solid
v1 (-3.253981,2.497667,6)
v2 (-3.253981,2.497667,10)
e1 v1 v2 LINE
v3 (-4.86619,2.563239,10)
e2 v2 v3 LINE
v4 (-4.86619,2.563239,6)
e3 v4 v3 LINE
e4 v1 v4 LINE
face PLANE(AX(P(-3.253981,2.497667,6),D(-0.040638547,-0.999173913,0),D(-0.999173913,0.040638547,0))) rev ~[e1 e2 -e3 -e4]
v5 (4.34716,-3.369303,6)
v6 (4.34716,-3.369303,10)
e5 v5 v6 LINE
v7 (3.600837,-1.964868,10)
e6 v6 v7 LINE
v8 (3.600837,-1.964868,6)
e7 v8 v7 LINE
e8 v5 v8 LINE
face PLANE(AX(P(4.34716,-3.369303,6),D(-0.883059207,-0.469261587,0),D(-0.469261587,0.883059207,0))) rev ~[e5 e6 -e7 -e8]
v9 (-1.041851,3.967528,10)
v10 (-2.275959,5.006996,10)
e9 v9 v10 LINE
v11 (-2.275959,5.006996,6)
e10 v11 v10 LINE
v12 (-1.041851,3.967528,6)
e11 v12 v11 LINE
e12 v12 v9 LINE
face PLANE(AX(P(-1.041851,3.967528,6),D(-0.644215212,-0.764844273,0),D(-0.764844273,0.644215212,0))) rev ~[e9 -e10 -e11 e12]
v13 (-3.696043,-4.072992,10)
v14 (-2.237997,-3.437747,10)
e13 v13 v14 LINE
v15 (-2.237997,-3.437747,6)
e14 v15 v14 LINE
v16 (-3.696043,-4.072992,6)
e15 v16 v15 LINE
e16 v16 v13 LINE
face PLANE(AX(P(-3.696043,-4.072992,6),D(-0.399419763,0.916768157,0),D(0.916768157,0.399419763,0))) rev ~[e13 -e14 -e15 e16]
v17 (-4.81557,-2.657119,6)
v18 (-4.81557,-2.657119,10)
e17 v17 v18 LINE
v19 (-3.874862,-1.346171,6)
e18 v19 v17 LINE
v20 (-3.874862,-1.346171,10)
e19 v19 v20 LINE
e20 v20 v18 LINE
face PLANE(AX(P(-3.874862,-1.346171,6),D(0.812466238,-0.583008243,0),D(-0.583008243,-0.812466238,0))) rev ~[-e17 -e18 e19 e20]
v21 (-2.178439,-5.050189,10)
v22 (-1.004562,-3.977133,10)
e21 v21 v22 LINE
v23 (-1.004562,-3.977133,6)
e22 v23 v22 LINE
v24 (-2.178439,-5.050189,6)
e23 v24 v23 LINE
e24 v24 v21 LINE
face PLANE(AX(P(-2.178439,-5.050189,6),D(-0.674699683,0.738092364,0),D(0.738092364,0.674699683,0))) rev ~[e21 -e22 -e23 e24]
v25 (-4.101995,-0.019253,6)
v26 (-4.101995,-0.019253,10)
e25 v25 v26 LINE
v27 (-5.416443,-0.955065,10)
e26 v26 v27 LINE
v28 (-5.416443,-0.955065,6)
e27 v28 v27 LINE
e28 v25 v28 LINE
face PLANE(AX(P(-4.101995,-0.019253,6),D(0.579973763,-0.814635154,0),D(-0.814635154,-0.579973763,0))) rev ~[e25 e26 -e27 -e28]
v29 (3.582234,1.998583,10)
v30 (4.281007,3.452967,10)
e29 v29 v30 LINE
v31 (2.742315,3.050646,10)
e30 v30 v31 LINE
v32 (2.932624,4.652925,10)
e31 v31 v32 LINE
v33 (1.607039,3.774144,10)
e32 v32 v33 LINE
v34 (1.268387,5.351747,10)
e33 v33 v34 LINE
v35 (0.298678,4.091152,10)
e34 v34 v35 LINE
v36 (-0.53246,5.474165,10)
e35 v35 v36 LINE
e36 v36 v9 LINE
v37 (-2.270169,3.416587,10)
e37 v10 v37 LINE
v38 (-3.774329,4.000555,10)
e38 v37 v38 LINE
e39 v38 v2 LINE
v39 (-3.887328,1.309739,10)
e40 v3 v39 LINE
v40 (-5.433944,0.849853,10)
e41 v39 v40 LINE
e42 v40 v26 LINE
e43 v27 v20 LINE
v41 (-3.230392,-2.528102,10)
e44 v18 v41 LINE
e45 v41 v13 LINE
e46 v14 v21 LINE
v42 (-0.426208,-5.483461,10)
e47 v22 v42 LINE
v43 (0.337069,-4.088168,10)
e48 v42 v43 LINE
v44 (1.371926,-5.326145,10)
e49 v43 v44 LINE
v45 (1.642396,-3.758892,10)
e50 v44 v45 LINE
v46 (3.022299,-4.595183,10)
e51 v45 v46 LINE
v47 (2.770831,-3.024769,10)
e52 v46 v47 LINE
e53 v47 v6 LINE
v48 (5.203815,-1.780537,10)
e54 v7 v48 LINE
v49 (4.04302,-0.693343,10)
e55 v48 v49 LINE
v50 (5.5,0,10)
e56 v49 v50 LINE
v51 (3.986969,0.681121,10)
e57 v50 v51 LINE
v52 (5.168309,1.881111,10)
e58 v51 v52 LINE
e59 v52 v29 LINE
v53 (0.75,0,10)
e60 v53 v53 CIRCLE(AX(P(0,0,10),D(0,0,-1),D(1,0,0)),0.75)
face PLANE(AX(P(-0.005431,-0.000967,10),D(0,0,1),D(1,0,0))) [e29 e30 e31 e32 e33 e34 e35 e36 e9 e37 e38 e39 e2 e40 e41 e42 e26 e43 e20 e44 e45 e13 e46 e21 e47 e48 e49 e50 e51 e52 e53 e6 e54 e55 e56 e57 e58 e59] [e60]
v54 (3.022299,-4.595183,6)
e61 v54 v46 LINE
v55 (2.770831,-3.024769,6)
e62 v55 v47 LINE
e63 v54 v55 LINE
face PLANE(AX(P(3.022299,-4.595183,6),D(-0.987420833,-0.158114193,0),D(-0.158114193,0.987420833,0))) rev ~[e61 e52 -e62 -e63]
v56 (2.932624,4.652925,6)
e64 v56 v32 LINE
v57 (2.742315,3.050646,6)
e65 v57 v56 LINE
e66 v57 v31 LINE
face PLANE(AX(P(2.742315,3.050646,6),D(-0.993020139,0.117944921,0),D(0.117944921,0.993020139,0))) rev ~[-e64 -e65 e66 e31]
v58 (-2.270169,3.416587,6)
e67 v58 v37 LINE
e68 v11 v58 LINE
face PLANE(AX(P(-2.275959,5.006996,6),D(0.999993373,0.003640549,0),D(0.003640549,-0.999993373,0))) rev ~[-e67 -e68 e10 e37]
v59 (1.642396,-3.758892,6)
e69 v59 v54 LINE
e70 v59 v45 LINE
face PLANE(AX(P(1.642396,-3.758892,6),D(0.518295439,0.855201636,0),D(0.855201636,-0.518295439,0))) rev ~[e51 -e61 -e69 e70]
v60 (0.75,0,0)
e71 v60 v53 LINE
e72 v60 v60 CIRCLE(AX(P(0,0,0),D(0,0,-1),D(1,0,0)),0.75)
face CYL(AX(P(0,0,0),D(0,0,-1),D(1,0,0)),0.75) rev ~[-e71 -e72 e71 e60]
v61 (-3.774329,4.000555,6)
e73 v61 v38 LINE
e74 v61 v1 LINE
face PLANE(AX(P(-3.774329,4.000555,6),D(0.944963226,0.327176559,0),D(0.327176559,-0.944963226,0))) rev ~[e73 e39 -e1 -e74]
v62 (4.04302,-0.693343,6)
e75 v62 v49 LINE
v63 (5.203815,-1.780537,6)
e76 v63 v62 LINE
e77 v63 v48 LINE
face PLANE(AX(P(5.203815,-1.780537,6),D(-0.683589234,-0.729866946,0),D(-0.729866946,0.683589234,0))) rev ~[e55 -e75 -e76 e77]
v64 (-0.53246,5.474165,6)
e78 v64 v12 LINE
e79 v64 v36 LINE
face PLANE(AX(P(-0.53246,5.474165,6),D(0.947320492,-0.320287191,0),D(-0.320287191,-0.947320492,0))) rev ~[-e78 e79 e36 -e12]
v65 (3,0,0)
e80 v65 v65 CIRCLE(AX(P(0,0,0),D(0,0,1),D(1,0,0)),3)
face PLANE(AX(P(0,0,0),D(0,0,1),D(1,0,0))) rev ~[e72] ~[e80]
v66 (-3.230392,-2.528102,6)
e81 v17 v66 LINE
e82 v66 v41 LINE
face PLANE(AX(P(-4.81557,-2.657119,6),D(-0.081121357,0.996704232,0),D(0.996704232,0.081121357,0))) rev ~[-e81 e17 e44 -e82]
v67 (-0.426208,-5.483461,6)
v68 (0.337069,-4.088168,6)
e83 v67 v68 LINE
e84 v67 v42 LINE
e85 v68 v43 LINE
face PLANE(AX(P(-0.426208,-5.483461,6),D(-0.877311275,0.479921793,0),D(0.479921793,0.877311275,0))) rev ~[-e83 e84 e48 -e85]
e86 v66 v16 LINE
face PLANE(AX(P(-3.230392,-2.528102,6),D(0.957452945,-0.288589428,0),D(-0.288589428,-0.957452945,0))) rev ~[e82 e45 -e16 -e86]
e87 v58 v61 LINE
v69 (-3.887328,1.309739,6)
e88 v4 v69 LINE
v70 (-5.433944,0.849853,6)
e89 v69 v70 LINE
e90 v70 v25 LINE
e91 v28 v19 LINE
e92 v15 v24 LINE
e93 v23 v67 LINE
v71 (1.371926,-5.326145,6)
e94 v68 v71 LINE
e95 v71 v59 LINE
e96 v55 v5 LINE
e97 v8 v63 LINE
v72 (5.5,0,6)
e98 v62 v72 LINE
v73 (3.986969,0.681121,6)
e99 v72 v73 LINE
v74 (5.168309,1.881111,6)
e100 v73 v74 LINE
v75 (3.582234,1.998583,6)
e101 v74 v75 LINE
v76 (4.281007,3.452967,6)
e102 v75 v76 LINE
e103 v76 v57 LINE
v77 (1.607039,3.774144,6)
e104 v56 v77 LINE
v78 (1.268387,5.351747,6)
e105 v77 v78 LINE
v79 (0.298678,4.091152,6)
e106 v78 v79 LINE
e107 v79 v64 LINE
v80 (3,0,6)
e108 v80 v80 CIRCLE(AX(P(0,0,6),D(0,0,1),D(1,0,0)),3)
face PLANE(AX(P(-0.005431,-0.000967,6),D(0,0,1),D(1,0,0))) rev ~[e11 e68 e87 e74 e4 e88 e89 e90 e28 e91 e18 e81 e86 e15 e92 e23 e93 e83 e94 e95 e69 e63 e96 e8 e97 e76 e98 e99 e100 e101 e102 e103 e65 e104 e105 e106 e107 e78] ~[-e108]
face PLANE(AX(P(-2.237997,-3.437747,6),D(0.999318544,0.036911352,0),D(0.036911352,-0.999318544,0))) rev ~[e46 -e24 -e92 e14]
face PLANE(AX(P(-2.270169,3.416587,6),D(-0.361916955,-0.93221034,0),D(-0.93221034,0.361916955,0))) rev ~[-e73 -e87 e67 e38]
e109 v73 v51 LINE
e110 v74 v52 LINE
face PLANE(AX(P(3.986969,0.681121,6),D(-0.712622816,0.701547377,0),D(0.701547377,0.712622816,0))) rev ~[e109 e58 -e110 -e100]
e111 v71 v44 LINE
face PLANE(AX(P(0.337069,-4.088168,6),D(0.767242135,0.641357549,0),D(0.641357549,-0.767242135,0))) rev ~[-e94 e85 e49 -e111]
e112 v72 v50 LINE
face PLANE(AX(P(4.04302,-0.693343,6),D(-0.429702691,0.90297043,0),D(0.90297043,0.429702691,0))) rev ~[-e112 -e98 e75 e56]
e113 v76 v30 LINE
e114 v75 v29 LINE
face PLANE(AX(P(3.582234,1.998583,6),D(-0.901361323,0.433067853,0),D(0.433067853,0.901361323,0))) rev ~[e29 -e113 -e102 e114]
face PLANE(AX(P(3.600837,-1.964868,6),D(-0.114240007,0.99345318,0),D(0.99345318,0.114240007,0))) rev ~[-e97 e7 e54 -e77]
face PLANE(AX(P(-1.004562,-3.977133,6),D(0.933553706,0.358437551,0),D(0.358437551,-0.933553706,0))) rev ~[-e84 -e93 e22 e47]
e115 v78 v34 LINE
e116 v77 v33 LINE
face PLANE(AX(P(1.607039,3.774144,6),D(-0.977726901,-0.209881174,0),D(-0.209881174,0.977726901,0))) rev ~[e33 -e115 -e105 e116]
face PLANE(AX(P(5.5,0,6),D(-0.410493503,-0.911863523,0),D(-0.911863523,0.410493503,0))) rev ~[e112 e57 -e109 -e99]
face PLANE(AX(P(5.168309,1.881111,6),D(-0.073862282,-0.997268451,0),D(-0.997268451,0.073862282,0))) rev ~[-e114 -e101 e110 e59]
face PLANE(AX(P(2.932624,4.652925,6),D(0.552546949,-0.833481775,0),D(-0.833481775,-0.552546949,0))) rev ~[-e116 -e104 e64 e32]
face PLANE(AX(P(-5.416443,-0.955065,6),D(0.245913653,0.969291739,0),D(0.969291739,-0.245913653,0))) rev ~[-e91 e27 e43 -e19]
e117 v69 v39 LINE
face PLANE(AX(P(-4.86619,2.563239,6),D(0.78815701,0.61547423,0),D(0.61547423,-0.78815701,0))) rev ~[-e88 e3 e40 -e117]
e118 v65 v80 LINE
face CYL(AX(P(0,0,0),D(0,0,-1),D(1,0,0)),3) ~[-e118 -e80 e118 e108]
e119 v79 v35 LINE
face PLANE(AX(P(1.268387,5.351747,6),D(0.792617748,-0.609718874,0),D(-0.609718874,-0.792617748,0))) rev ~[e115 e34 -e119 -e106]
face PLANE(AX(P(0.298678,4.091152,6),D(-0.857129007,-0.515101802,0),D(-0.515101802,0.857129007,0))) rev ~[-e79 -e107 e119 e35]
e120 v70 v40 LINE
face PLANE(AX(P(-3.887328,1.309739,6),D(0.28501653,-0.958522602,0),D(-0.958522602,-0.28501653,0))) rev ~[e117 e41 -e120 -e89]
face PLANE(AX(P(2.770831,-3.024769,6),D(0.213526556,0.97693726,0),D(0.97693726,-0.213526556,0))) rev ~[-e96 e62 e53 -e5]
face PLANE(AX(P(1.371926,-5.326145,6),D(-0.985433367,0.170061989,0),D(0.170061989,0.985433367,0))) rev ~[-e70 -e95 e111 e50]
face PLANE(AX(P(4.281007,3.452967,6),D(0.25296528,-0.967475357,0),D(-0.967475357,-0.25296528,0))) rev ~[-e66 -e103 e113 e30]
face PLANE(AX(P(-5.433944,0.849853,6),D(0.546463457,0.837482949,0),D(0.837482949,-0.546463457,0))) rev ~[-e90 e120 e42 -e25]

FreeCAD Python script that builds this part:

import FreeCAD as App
import Part
import Sketcher
from FreeCAD import Vector
Q = App.Units.Quantity


def add_polygon(sketch, points):
    """Adds a closed chain of lines whose ends are joined by coincident constraints."""
    first, n = sketch.GeometryCount, len(points)
    for a, b in zip(points, points[1:] + points[:1]):
        sketch.addGeometry(Part.LineSegment(App.Vector(*a, 0), App.Vector(*b, 0)), False)
    for i in range(n):
        sketch.addConstraint(Sketcher.Constraint("Coincident", first + i, 2, first + (i + 1) % n, 1))

doc = App.newDocument("Part")
body = doc.addObject("PartDesign::Body", "Body")

# Sketch on XY plane
sketch1 = body.newObject("Sketcher::SketchObject", "Sketch")
sketch1.AttachmentSupport = (doc.getObject("XY_Plane"), [""])
sketch1.MapMode = "FlatFace"
sketch1.addGeometry(Part.Circle(Vector(0, 0, 0), Vector(0, 0, 1), 3), False)
sketch1.addConstraint(Sketcher.Constraint("Coincident", 0, 3, -1, 1))
sketch1.addConstraint(Sketcher.Constraint("Diameter", 0, Q("6 mm")))
pad1 = body.newObject("PartDesign::Pad", "Pad")
pad1.Profile = sketch1
pad1.Length = 6

# Sketch on XY plane
sketch2 = body.newObject("Sketcher::SketchObject", "Sketch001")
sketch2.AttachmentSupport = (doc.getObject("XY_Plane"), [""])
sketch2.MapMode = "FlatFace"
sketch2.AttachmentOffset = App.Placement(Vector(0, 0, 6), App.Rotation())
add_polygon(sketch2, [(4.04302, -0.693343), (5.5, 0), (3.986969, 0.681121), (5.168309, 1.881111), (3.582234, 1.998583), (4.281007, 3.452967), (2.742315, 3.050646), (2.932624, 4.652925), (1.607039, 3.774144), (1.268387, 5.351747), (0.298678, 4.091152), (-0.53246, 5.474165), (-1.041851, 3.967528), (-2.275959, 5.006996), (-2.270169, 3.416587), (-3.774329, 4.000555), (-3.253981, 2.497667), (-4.86619, 2.563239), (-3.887328, 1.309739), (-5.433944, 0.849853), (-4.101995, -0.019253), (-5.416443, -0.955065), (-3.874862, -1.346171), (-4.81557, -2.657119), (-3.230392, -2.528102), (-3.696043, -4.072992), (-2.237997, -3.437747), (-2.178439, -5.050189), (-1.004562, -3.977133), (-0.426208, -5.483461), (0.337069, -4.088168), (1.371926, -5.326145), (1.642396, -3.758892), (3.022299, -4.595183), (2.770831, -3.024769), (4.34716, -3.369303), (3.600837, -1.964868), (5.203815, -1.780537)])  # lines 0-37
sketch2.addConstraint(Sketcher.Constraint("PointOnObject", 0, 2, -1))
sketch2.addConstraint(Sketcher.Constraint("DistanceX", -1, 1, 0, 2, Q("5.5 mm")))
sketch2.addConstraint(Sketcher.Constraint("DistanceX", 17, 2, 14, 2, Q("0.112999 mm")))
sketch2.addConstraint(Sketcher.Constraint("DistanceX", -1, 1, 32, 2, Q("3.022299 mm")))
sketch2.addConstraint(Sketcher.Constraint("DistanceY", 5, 2, 7, 2, Q("0.723498 mm")))
sketch2.addConstraint(Sketcher.Constraint("DistanceY", 5, 2, 8, 2, Q("2.301101 mm")))
sketch2.addConstraint(Sketcher.Constraint("DistanceX", 10, 2, 7, 2, Q("2.139499 mm")))
sketch2.addConstraint(Sketcher.Constraint("DistanceX", 12, 2, 10, 2, Q("1.743499 mm")))
sketch2.addConstraint(Sketcher.Constraint("DistanceY", 17, 2, 16, 2, Q("1.2535 mm")))
sketch2.addConstraint(Sketcher.Constraint("DistanceX", 18, 2, 20, 2, Q("0.017501 mm")))
sketch2.addConstraint(Sketcher.Constraint("DistanceX", 20, 2, 24, 2, Q("1.7204 mm")))
sketch2.addConstraint(Sketcher.Constraint("DistanceX", 21, 2, 27, 2, Q("2.8703 mm")))
sketch2.addConstraint(Sketcher.Constraint("DistanceY", 30, 2, 25, 2, Q("1.888398 mm")))
sketch2.addConstraint(Sketcher.Constraint("DistanceY", 29, 2, 33, 2, Q("1.063399 mm")))
sketch2.addConstraint(Sketcher.Constraint("DistanceY", 33, 2, 35, 2, Q("1.059901 mm")))
sketch2.addConstraint(Sketcher.Constraint("Distance", 0, Q("1.613541 mm")))
sketch2.addConstraint(Sketcher.Constraint("Distance", 3, Q("1.590419 mm")))
sketch2.addConstraint(Sketcher.Constraint("Distance", 4, Q("1.613542 mm")))
sketch2.addConstraint(Sketcher.Constraint("Distance", 5, Q("1.59042 mm")))
sketch2.addConstraint(Sketcher.Constraint("Distance", 6, Q("1.613541 mm")))
sketch2.addConstraint(Sketcher.Constraint("Distance", 7, Q("1.590419 mm")))
sketch2.addConstraint(Sketcher.Constraint("Distance", 8, Q("1.613542 mm")))
sketch2.addConstraint(Sketcher.Constraint("Distance", 9, Q("1.59042 mm")))
sketch2.addConstraint(Sketcher.Constraint("Distance", 10, Q("1.613541 mm")))
sketch2.addConstraint(Sketcher.Constraint("Distance", 11, Q("1.59042 mm")))
sketch2.addConstraint(Sketcher.Constraint("Distance", 12, Q("1.613542 mm")))
sketch2.addConstraint(Sketcher.Constraint("Distance", 13, Q("1.59042 mm")))
sketch2.addConstraint(Sketcher.Constraint("Distance", 14, Q("1.613541 mm")))
sketch2.addConstraint(Sketcher.Constraint("Distance", 15, Q("1.59042 mm")))
sketch2.addConstraint(Sketcher.Constraint("Distance", 16, Q("1.613542 mm")))
sketch2.addConstraint(Sketcher.Constraint("Distance", 17, Q("1.590419 mm")))
sketch2.addConstraint(Sketcher.Constraint("Distance", 18, Q("1.613542 mm")))
sketch2.addConstraint(Sketcher.Constraint("Distance", 19, Q("1.590419 mm")))
sketch2.addConstraint(Sketcher.Constraint("Distance", 20, Q("1.613542 mm")))
sketch2.addConstraint(Sketcher.Constraint("Distance", 21, Q("1.59042 mm")))
sketch2.addConstraint(Sketcher.Constraint("Distance", 22, Q("1.613542 mm")))
sketch2.addConstraint(Sketcher.Constraint("Distance", 23, Q("1.59042 mm")))
sketch2.addConstraint(Sketcher.Constraint("Distance", 24, Q("1.613541 mm")))
sketch2.addConstraint(Sketcher.Constraint("Distance", 25, Q("1.59042 mm")))
sketch2.addConstraint(Sketcher.Constraint("Distance", 26, Q("1.613542 mm")))
sketch2.addConstraint(Sketcher.Constraint("Distance", 27, Q("1.59042 mm")))
sketch2.addConstraint(Sketcher.Constraint("Distance", 28, Q("1.613542 mm")))
sketch2.addConstraint(Sketcher.Constraint("Distance", 29, Q("1.59042 mm")))
sketch2.addConstraint(Sketcher.Constraint("Distance", 30, Q("1.613541 mm")))
sketch2.addConstraint(Sketcher.Constraint("Distance", 31, Q("1.59042 mm")))
sketch2.addConstraint(Sketcher.Constraint("Distance", 32, Q("1.613541 mm")))
sketch2.addConstraint(Sketcher.Constraint("Distance", 33, Q("1.59042 mm")))
sketch2.addConstraint(Sketcher.Constraint("Distance", 34, Q("1.613542 mm")))
sketch2.addConstraint(Sketcher.Constraint("Distance", 35, Q("1.59042 mm")))
sketch2.addConstraint(Sketcher.Constraint("Distance", 36, Q("1.613542 mm")))
sketch2.addConstraint(Sketcher.Constraint("Distance", 37, Q("1.59042 mm")))
sketch2.addConstraint(Sketcher.Constraint("DistanceX", -1, 1, 1, 2, Q("3.986969 mm")))
sketch2.addConstraint(Sketcher.Constraint("DistanceY", -1, 1, 1, 2, Q("0.681121 mm")))
sketch2.addConstraint(Sketcher.Constraint("DistanceX", -1, 1, 2, 2, Q("5.168309 mm")))
sketch2.addConstraint(Sketcher.Constraint("DistanceY", -1, 1, 2, 2, Q("1.881111 mm")))
sketch2.addConstraint(Sketcher.Constraint("DistanceX", -1, 1, 7, 2, Q("1.607039 mm")))
sketch2.addConstraint(Sketcher.Constraint("DistanceX", 11, 2, -1, 1, Q("1.041851 mm")))
sketch2.addConstraint(Sketcher.Constraint("DistanceY", -1, 1, 11, 2, Q("3.967528 mm")))
sketch2.addConstraint(Sketcher.Constraint("DistanceX", 13, 2, -1, 1, Q("2.270169 mm")))
sketch2.addConstraint(Sketcher.Constraint("DistanceX", 14, 2, -1, 1, Q("3.774329 mm")))
sketch2.addConstraint(Sketcher.Constraint("DistanceX", 15, 2, -1, 1, Q("3.253981 mm")))
sketch2.addConstraint(Sketcher.Constraint("DistanceX", 21, 2, -1, 1, Q("3.874862 mm")))
sketch2.addConstraint(Sketcher.Constraint("DistanceY", 21, 2, -1, 1, Q("1.346171 mm")))
sketch2.addConstraint(Sketcher.Constraint("DistanceX", 22, 2, -1, 1, Q("4.81557 mm")))
sketch2.addConstraint(Sketcher.Constraint("DistanceX", 26, 2, -1, 1, Q("2.178439 mm")))
sketch2.addConstraint(Sketcher.Constraint("DistanceY", 26, 2, -1, 1, Q("5.050189 mm")))
sketch2.addConstraint(Sketcher.Constraint("DistanceY", 28, 2, -1, 1, Q("5.483461 mm")))
sketch2.addConstraint(Sketcher.Constraint("DistanceX", -1, 1, 29, 2, Q("0.337069 mm")))
sketch2.addConstraint(Sketcher.Constraint("DistanceY", 31, 2, -1, 1, Q("3.758892 mm")))
sketch2.addConstraint(Sketcher.Constraint("DistanceX", -1, 1, 33, 2, Q("2.770831 mm")))
sketch2.addConstraint(Sketcher.Constraint("DistanceX", -1, 1, 34, 2, Q("4.34716 mm")))
sketch2.addConstraint(Sketcher.Constraint("DistanceX", -1, 1, 37, 2, Q("4.04302 mm")))
sketch2.addConstraint(Sketcher.Constraint("DistanceY", 1, 2, 3, 2, Q("1.317462 mm")))
sketch2.addConstraint(Sketcher.Constraint("DistanceX", 5, 2, 3, 2, Q("0.839919 mm")))
sketch2.addConstraint(Sketcher.Constraint("DistanceX", 5, 2, 4, 2, Q("1.538692 mm")))
sketch2.addConstraint(Sketcher.Constraint("DistanceX", 18, 2, 19, 2, Q("1.331949 mm")))
pad2 = body.newObject("PartDesign::Pad", "Pad001")
pad2.Profile = sketch2
pad2.Length = 4

# Sketch on XY plane
sketch3 = body.newObject("Sketcher::SketchObject", "Sketch002")
sketch3.AttachmentSupport = (doc.getObject("XY_Plane"), [""])
sketch3.MapMode = "FlatFace"
sketch3.addGeometry(Part.Circle(Vector(0, 0, 0), Vector(0, 0, 1), 0.75), False)
sketch3.addConstraint(Sketcher.Constraint("Coincident", 0, 3, -1, 1))
sketch3.addConstraint(Sketcher.Constraint("Diameter", 0, Q("1.5 mm")))
pocket1 = body.newObject("PartDesign::Pocket", "Pocket")
pocket1.Profile = sketch3
pocket1.Length = 25.4
pocket1.Reversed = True

doc.recompute()
